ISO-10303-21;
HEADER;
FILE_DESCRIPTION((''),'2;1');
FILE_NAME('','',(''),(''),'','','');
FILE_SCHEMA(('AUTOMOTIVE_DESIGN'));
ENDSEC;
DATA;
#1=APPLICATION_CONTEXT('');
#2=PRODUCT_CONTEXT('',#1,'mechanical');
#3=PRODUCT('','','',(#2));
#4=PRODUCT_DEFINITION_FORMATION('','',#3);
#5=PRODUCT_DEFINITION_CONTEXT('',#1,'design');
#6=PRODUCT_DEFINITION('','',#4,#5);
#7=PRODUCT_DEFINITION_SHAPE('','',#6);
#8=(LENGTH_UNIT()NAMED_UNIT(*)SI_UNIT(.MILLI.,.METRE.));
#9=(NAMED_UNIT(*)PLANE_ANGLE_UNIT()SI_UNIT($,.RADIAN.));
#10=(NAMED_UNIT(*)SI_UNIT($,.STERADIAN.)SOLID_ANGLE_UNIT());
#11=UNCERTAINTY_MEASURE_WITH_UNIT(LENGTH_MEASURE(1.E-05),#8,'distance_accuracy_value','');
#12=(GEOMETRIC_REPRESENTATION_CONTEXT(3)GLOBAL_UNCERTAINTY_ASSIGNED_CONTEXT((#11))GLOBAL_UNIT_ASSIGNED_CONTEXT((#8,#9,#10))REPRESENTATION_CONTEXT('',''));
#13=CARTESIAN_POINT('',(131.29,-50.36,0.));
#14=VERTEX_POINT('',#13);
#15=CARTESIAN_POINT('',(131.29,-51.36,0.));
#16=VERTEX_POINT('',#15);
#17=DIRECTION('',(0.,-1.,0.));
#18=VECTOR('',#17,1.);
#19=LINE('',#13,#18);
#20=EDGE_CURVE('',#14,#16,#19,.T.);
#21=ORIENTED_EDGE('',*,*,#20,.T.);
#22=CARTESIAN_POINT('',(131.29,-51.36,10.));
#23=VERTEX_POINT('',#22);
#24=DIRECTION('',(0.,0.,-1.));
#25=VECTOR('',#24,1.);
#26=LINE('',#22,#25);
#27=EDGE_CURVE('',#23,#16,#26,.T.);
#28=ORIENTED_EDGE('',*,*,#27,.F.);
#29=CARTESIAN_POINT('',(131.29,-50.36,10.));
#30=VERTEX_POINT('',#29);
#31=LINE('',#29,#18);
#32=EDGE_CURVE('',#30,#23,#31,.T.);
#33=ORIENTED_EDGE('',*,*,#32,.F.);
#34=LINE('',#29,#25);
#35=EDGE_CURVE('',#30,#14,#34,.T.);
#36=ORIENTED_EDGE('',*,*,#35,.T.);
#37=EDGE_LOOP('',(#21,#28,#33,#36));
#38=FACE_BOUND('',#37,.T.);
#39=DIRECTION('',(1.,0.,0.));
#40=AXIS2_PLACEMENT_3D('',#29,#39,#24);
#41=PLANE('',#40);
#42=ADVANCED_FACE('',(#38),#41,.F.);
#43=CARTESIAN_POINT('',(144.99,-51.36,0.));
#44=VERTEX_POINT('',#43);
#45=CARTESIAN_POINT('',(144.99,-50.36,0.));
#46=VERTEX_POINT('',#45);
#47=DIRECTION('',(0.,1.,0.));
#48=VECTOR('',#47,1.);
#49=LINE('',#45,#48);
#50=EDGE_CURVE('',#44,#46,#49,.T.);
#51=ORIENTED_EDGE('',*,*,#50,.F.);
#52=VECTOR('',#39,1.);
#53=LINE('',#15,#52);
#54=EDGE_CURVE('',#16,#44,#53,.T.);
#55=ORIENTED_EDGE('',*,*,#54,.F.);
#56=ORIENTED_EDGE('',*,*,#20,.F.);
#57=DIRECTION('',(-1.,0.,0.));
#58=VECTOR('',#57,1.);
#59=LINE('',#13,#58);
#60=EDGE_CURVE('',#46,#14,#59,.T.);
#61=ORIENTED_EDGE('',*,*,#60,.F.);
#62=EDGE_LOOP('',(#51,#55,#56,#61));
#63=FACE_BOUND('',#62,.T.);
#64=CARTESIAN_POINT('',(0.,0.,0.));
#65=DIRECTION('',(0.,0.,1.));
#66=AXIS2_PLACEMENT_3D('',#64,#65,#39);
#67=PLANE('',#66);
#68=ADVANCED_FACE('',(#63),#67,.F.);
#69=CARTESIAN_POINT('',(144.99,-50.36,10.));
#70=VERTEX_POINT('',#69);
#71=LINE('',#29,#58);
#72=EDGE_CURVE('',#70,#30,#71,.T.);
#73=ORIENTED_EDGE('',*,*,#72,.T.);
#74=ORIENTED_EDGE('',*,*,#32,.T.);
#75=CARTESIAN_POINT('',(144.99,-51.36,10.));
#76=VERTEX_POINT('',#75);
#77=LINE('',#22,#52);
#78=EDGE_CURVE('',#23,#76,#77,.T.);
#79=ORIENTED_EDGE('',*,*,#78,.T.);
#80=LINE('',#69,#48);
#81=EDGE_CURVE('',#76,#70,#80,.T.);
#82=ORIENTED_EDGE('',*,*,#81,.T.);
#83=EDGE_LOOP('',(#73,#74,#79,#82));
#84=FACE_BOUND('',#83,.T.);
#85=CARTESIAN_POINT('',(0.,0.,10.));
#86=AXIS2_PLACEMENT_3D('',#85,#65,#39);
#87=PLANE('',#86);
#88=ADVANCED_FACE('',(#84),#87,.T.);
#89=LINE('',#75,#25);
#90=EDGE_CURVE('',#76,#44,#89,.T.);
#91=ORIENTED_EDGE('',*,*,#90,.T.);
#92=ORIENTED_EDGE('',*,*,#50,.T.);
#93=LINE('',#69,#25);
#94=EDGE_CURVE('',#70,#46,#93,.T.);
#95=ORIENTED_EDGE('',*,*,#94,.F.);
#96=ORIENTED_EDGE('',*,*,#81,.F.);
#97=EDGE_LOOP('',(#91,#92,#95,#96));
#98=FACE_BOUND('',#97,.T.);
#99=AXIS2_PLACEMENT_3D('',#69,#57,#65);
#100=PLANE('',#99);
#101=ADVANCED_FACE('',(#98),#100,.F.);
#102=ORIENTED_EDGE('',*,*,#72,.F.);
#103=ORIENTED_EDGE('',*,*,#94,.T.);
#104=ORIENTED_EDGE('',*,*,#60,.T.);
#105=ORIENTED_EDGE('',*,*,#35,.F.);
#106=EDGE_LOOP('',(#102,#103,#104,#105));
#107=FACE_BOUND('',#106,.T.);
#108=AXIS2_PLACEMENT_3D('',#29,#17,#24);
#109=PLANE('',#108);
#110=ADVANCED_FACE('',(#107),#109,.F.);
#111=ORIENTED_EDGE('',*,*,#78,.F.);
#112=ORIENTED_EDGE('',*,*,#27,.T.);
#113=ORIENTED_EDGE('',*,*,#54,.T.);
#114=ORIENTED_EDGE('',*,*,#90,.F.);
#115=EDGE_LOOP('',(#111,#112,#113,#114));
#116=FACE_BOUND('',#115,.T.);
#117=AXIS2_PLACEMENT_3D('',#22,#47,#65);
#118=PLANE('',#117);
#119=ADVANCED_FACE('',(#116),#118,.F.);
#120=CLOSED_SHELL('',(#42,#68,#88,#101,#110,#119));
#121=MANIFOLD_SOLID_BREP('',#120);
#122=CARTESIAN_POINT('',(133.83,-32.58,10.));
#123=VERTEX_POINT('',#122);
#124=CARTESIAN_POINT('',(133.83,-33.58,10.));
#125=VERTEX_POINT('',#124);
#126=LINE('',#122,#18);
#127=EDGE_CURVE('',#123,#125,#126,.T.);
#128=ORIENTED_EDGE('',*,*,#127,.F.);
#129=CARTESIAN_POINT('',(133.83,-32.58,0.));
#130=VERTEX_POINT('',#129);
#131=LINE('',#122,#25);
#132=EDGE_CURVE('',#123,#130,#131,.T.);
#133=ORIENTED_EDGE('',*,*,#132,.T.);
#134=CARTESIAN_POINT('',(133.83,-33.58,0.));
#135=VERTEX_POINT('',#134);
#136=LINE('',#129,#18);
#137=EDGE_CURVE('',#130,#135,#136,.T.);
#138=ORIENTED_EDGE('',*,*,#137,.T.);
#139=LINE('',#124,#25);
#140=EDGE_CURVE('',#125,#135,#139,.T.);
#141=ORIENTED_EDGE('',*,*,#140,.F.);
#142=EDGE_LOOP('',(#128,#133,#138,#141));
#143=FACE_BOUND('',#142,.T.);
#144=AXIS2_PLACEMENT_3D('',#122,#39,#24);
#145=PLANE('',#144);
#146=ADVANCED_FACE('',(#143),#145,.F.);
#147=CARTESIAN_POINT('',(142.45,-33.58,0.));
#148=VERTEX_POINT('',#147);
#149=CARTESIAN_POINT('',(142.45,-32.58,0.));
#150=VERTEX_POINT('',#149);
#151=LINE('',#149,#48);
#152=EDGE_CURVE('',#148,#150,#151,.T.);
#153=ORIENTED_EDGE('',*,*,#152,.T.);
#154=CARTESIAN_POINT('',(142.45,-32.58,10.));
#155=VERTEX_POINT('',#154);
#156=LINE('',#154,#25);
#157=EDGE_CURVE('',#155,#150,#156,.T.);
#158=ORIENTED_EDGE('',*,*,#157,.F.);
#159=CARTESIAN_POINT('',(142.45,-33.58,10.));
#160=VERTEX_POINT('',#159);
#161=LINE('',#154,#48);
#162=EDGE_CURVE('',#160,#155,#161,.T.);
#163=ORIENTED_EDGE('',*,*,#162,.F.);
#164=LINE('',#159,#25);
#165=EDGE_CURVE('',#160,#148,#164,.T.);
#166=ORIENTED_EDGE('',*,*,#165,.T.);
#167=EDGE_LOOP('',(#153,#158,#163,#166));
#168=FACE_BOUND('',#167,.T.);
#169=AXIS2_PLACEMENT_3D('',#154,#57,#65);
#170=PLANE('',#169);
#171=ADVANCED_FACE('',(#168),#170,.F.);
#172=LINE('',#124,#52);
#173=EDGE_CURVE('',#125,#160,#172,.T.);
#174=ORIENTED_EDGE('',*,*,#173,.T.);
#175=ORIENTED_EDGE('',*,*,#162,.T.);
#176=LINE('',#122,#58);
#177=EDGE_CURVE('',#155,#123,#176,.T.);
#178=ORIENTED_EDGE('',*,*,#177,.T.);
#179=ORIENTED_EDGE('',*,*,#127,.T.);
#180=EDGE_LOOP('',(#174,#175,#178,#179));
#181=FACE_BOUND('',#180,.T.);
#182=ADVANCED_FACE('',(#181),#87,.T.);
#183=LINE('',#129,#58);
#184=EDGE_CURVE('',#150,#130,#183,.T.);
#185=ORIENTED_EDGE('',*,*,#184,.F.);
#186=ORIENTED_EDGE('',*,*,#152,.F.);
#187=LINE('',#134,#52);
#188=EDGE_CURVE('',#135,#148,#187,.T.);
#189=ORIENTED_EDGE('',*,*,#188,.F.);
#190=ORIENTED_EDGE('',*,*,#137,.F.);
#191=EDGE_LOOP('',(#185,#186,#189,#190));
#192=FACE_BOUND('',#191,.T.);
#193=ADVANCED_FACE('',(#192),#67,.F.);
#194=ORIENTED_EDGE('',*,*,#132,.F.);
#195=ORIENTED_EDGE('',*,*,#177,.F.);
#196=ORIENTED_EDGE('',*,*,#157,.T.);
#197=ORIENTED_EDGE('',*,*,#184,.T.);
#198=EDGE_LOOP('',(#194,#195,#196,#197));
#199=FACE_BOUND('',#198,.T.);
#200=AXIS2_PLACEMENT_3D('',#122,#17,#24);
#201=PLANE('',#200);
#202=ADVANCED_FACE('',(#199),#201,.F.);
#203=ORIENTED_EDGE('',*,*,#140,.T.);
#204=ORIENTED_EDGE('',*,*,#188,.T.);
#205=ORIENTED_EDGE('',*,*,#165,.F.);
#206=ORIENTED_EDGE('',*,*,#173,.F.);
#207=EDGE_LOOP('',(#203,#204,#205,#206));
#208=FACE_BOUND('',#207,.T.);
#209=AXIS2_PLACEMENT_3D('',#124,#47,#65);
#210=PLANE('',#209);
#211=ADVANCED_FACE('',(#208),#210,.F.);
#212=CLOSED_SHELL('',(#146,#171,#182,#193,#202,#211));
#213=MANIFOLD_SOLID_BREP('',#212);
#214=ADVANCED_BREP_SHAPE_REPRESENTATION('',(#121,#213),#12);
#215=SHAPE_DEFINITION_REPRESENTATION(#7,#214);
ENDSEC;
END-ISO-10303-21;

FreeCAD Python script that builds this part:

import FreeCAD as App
import Part
import Sketcher
from FreeCAD import Vector
Q = App.Units.Quantity

doc = App.newDocument("Part")
body = doc.addObject("PartDesign::Body", "Body")

# Sketch on XY plane
sketch1 = body.newObject("Sketcher::SketchObject", "Sketch")
sketch1.AttachmentSupport = (doc.getObject("XY_Plane"), [""])
sketch1.MapMode = "FlatFace"
sketch1.addGeometry([
    Part.LineSegment(Vector(133.83, -32.58, 0), Vector(133.83, -33.58, 0)),
    Part.LineSegment(Vector(133.83, -33.58, 0), Vector(142.45, -33.58, 0)),
    Part.LineSegment(Vector(142.45, -33.58, 0), Vector(142.45, -32.58, 0)),
    Part.LineSegment(Vector(142.45, -32.58, 0), Vector(133.83, -32.58, 0)),
], False)
sketch1.addConstraint([
    Sketcher.Constraint("Coincident", 0, 2, 1, 1),
    Sketcher.Constraint("Coincident", 1, 2, 2, 1),
    Sketcher.Constraint("Coincident", 2, 2, 3, 1),
    Sketcher.Constraint("Coincident", 3, 2, 0, 1),
    Sketcher.Constraint("Vertical", 0),
    Sketcher.Constraint("Horizontal", 1),
    Sketcher.Constraint("Vertical", 2),
    Sketcher.Constraint("Horizontal", 3),
    Sketcher.Constraint("DistanceY", 0, 2, 0, 1, Q("1 mm")),
    Sketcher.Constraint("DistanceX", 1, 1, 1, 2, Q("8.62 mm")),
    Sketcher.Constraint("DistanceX", -1, 1, 0, 2, Q("133.83 mm")),
    Sketcher.Constraint("DistanceY", 0, 2, -1, 1, Q("33.58 mm")),
])
pad1 = body.newObject("PartDesign::Pad", "Pad")
pad1.Profile = sketch1
pad1.Length = 10
body2 = doc.addObject("PartDesign::Body", "Body001")

# Sketch on XY plane
sketch2 = body2.newObject("Sketcher::SketchObject", "Sketch001")
sketch2.AttachmentSupport = (doc.getObject("XY_Plane001"), [""])
sketch2.MapMode = "FlatFace"
sketch2.addGeometry([
    Part.LineSegment(Vector(131.29, -50.36, 0), Vector(131.29, -51.36, 0)),
    Part.LineSegment(Vector(131.29, -51.36, 0), Vector(144.99, -51.36, 0)),
    Part.LineSegment(Vector(144.99, -51.36, 0), Vector(144.99, -50.36, 0)),
    Part.LineSegment(Vector(144.99, -50.36, 0), Vector(131.29, -50.36, 0)),
], False)
sketch2.addConstraint([
    Sketcher.Constraint("Coincident", 0, 2, 1, 1),
    Sketcher.Constraint("Coincident", 1, 2, 2, 1),
    Sketcher.Constraint("Coincident", 2, 2, 3, 1),
    Sketcher.Constraint("Coincident", 3, 2, 0, 1),
    Sketcher.Constraint("Vertical", 0),
    Sketcher.Constraint("Horizontal", 1),
    Sketcher.Constraint("Vertical", 2),
    Sketcher.Constraint("Horizontal", 3),
    Sketcher.Constraint("DistanceY", 0, 2, 0, 1, Q("1 mm")),
    Sketcher.Constraint("DistanceX", 1, 1, 1, 2, Q("13.7 mm")),
    Sketcher.Constraint("DistanceX", -1, 1, 0, 2, Q("131.29 mm")),
    Sketcher.Constraint("DistanceY", 0, 2, -1, 1, Q("51.36 mm")),
])
pad2 = body2.newObject("PartDesign::Pad", "Pad001")
pad2.Profile = sketch2
pad2.Length = 10

doc.recompute()
